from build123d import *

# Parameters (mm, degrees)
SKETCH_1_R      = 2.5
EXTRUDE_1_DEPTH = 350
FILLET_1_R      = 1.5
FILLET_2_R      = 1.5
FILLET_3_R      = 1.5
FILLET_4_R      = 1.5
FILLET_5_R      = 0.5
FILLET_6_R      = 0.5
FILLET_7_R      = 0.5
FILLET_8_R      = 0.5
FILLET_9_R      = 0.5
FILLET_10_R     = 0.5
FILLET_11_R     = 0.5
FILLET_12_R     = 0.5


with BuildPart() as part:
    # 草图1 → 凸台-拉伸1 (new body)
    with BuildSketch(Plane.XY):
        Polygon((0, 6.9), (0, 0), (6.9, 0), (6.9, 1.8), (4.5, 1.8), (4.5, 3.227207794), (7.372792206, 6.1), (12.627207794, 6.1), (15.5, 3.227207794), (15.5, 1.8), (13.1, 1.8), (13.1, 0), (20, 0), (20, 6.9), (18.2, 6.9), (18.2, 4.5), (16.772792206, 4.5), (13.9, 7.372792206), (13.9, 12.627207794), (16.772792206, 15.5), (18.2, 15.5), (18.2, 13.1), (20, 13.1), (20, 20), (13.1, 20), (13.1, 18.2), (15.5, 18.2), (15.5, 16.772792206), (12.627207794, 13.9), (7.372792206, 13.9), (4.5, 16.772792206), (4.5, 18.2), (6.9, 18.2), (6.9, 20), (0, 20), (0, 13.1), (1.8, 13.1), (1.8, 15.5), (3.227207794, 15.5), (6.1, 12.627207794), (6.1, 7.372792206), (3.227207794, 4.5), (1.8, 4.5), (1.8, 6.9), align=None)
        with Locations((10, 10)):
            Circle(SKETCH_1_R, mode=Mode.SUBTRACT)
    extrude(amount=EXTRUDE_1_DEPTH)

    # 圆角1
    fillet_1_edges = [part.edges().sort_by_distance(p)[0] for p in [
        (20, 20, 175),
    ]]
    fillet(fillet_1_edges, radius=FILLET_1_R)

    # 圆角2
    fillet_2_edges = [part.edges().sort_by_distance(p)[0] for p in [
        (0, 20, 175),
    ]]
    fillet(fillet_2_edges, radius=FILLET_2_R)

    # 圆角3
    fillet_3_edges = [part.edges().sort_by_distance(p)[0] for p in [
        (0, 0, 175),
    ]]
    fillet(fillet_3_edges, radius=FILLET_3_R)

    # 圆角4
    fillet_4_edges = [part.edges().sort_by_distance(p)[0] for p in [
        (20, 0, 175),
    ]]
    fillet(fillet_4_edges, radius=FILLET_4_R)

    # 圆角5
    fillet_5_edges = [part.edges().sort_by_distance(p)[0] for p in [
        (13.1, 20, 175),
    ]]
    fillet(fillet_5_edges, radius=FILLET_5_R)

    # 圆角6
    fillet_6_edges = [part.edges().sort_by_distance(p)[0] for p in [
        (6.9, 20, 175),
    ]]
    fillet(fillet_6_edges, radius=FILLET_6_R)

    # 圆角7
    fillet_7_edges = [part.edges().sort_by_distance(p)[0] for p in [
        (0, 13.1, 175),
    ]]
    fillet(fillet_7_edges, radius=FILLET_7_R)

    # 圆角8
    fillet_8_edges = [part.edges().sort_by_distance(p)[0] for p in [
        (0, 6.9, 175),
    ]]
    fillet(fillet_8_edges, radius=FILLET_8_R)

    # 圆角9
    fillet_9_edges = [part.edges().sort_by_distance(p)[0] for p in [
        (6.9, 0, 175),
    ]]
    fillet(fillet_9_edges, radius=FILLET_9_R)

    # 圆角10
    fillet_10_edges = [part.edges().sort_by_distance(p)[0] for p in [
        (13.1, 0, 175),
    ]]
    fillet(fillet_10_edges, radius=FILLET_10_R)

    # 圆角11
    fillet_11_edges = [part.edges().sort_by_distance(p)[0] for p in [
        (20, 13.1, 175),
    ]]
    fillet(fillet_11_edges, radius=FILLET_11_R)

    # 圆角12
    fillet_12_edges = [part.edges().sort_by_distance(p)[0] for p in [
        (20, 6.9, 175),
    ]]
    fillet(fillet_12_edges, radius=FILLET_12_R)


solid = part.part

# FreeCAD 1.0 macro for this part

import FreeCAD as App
import Part
import Sketcher
from FreeCAD import Vector
Q = App.Units.Quantity


def edges_at(feature, points):
    """Names of the edges that pass closest to the given points."""
    edges = feature.Shape.Edges
    near = lambda p: min(range(len(edges)), key=lambda i: edges[i].distToShape(Part.Vertex(*p))[0])
    return sorted({f"Edge{near(p) + 1}" for p in points})

doc = App.newDocument("Part")
body = doc.addObject("PartDesign::Body", "Body")

sketch1 = body.newObject("Sketcher::SketchObject", "Sketch")
sketch1.AttachmentSupport = (doc.getObject("XY_Plane"), [""])
sketch1.MapMode = "FlatFace"
sketch1.addGeometry([
    Part.LineSegment(Vector(0, 6.9, 0), Vector(0, 0, 0)),
    Part.LineSegment(Vector(0, 0, 0), Vector(6.9, 0, 0)),
    Part.LineSegment(Vector(6.9, 0, 0), Vector(6.9, 1.8, 0)),
    Part.LineSegment(Vector(6.9, 1.8, 0), Vector(4.5, 1.8, 0)),
    Part.LineSegment(Vector(4.5, 1.8, 0), Vector(4.5, 3.2, 0)),
    Part.LineSegment(Vector(4.5, 3.2, 0), Vector(7.4, 6.1, 0)),
    Part.LineSegment(Vector(7.4, 6.1, 0), Vector(12.6, 6.1, 0)),
    Part.LineSegment(Vector(12.6, 6.1, 0), Vector(15.5, 3.2, 0)),
    Part.LineSegment(Vector(15.5, 3.2, 0), Vector(15.5, 1.8, 0)),
    Part.LineSegment(Vector(15.5, 1.8, 0), Vector(13.1, 1.8, 0)),
    Part.LineSegment(Vector(13.1, 1.8, 0), Vector(13.1, 0, 0)),
    Part.LineSegment(Vector(13.1, 0, 0), Vector(20, 0, 0)),
    Part.LineSegment(Vector(20, 0, 0), Vector(20, 6.9, 0)),
    Part.LineSegment(Vector(20, 6.9, 0), Vector(18.2, 6.9, 0)),
    Part.LineSegment(Vector(18.2, 6.9, 0), Vector(18.2, 4.5, 0)),
    Part.LineSegment(Vector(18.2, 4.5, 0), Vector(16.8, 4.5, 0)),
    Part.LineSegment(Vector(16.8, 4.5, 0), Vector(13.9, 7.4, 0)),
    Part.LineSegment(Vector(13.9, 7.4, 0), Vector(13.9, 12.6, 0)),
    Part.LineSegment(Vector(13.9, 12.6, 0), Vector(16.8, 15.5, 0)),
    Part.LineSegment(Vector(16.8, 15.5, 0), Vector(18.2, 15.5, 0)),
    Part.LineSegment(Vector(18.2, 15.5, 0), Vector(18.2, 13.1, 0)),
    Part.LineSegment(Vector(18.2, 13.1, 0), Vector(20, 13.1, 0)),
    Part.LineSegment(Vector(20, 13.1, 0), Vector(20, 20, 0)),
    Part.LineSegment(Vector(20, 20, 0), Vector(13.1, 20, 0)),
    Part.LineSegment(Vector(13.1, 20, 0), Vector(13.1, 18.2, 0)),
    Part.LineSegment(Vector(13.1, 18.2, 0), Vector(15.5, 18.2, 0)),
    Part.LineSegment(Vector(15.5, 18.2, 0), Vector(15.5, 16.8, 0)),
    Part.LineSegment(Vector(15.5, 16.8, 0), Vector(12.6, 13.9, 0)),
    Part.LineSegment(Vector(12.6, 13.9, 0), Vector(7.4, 13.9, 0)),
    Part.LineSegment(Vector(7.4, 13.9, 0), Vector(4.5, 16.8, 0)),
    Part.LineSegment(Vector(4.5, 16.8, 0), Vector(4.5, 18.2, 0)),
    Part.LineSegment(Vector(4.5, 18.2, 0), Vector(6.9, 18.2, 0)),
    Part.LineSegment(Vector(6.9, 18.2, 0), Vector(6.9, 20, 0)),
    Part.LineSegment(Vector(6.9, 20, 0), Vector(0, 20, 0)),
    Part.LineSegment(Vector(0, 20, 0), Vector(0, 13.1, 0)),
    Part.LineSegment(Vector(0, 13.1, 0), Vector(1.8, 13.1, 0)),
    Part.LineSegment(Vector(1.8, 13.1, 0), Vector(1.8, 15.5, 0)),
    Part.LineSegment(Vector(1.8, 15.5, 0), Vector(3.2, 15.5, 0)),
    Part.LineSegment(Vector(3.2, 15.5, 0), Vector(6.1, 12.6, 0)),
    Part.LineSegment(Vector(6.1, 12.6, 0), Vector(6.1, 7.4, 0)),
    Part.LineSegment(Vector(6.1, 7.4, 0), Vector(3.2, 4.5, 0)),
    Part.LineSegment(Vector(3.2, 4.5, 0), Vector(1.8, 4.5, 0)),
    Part.LineSegment(Vector(1.8, 4.5, 0), Vector(1.8, 6.9, 0)),
    Part.LineSegment(Vector(1.8, 6.9, 0), Vector(0, 6.9, 0)),
    Part.Circle(Vector(10, 10, 0), Vector(0, 0, 1), 2.5),
], False)
sketch1.addConstraint([
    Sketcher.Constraint("Coincident", 0, 2, 1, 1),
    Sketcher.Constraint("Coincident", 1, 2, 2, 1),
    Sketcher.Constraint("Coincident", 2, 2, 3, 1),
    Sketcher.Constraint("Coincident", 3, 2, 4, 1),
    Sketcher.Constraint("Coincident", 4, 2, 5, 1),
    Sketcher.Constraint("Coincident", 5, 2, 6, 1),
    Sketcher.Constraint("Coincident", 6, 2, 7, 1),
    Sketcher.Constraint("Coincident", 7, 2, 8, 1),
    Sketcher.Constraint("Coincident", 8, 2, 9, 1),
    Sketcher.Constraint("Coincident", 9, 2, 10, 1),
    Sketcher.Constraint("Coincident", 10, 2, 11, 1),
    Sketcher.Constraint("Coincident", 11, 2, 12, 1),
    Sketcher.Constraint("Coincident", 12, 2, 13, 1),
    Sketcher.Constraint("Coincident", 13, 2, 14, 1),
    Sketcher.Constraint("Coincident", 14, 2, 15, 1),
    Sketcher.Constraint("Coincident", 15, 2, 16, 1),
    Sketcher.Constraint("Coincident", 16, 2, 17, 1),
    Sketcher.Constraint("Coincident", 17, 2, 18, 1),
    Sketcher.Constraint("Coincident", 18, 2, 19, 1),
    Sketcher.Constraint("Coincident", 19, 2, 20, 1),
    Sketcher.Constraint("Coincident", 20, 2, 21, 1),
    Sketcher.Constraint("Coincident", 21, 2, 22, 1),
    Sketcher.Constraint("Coincident", 22, 2, 23, 1),
    Sketcher.Constraint("Coincident", 23, 2, 24, 1),
    Sketcher.Constraint("Coincident", 24, 2, 25, 1),
    Sketcher.Constraint("Coincident", 25, 2, 26, 1),
    Sketcher.Constraint("Coincident", 26, 2, 27, 1),
    Sketcher.Constraint("Coincident", 27, 2, 28, 1),
    Sketcher.Constraint("Coincident", 28, 2, 29, 1),
    Sketcher.Constraint("Coincident", 29, 2, 30, 1),
    Sketcher.Constraint("Coincident", 30, 2, 31, 1),
    Sketcher.Constraint("Coincident", 31, 2, 32, 1),
    Sketcher.Constraint("Coincident", 32, 2, 33, 1),
    Sketcher.Constraint("Coincident", 33, 2, 34, 1),
    Sketcher.Constraint("Coincident", 34, 2, 35, 1),
    Sketcher.Constraint("Coincident", 35, 2, 36, 1),
    Sketcher.Constraint("Coincident", 36, 2, 37, 1),
    Sketcher.Constraint("Coincident", 37, 2, 38, 1),
    Sketcher.Constraint("Coincident", 38, 2, 39, 1),
    Sketcher.Constraint("Coincident", 39, 2, 40, 1),
    Sketcher.Constraint("Coincident", 40, 2, 41, 1),
    Sketcher.Constraint("Coincident", 41, 2, 42, 1),
    Sketcher.Constraint("Coincident", 42, 2, 43, 1),
    Sketcher.Constraint("Coincident", 43, 2, 0, 1),
    Sketcher.Constraint("Vertical", 0),
    Sketcher.Constraint("Horizontal", 1),
    Sketcher.Constraint("Vertical", 2),
    Sketcher.Constraint("Horizontal", 3),
    Sketcher.Constraint("Vertical", 4),
    Sketcher.Constraint("Horizontal", 6),
    Sketcher.Constraint("Vertical", 8),
    Sketcher.Constraint("Horizontal", 9),
    Sketcher.Constraint("Vertical", 10),
    Sketcher.Constraint("Horizontal", 11),
    Sketcher.Constraint("Vertical", 12),
    Sketcher.Constraint("Horizontal", 13),
    Sketcher.Constraint("Vertical", 14),
    Sketcher.Constraint("Horizontal", 15),
    Sketcher.Constraint("Vertical", 17),
    Sketcher.Constraint("Horizontal", 19),
    Sketcher.Constraint("Vertical", 20),
    Sketcher.Constraint("Horizontal", 21),
    Sketcher.Constraint("Vertical", 22),
    Sketcher.Constraint("Horizontal", 23),
    Sketcher.Constraint("Vertical", 24),
    Sketcher.Constraint("Horizontal", 25),
    Sketcher.Constraint("Vertical", 26),
    Sketcher.Constraint("Horizontal", 28),
    Sketcher.Constraint("Vertical", 30),
    Sketcher.Constraint("Horizontal", 31),
    Sketcher.Constraint("Vertical", 32),
    Sketcher.Constraint("Horizontal", 33),
    Sketcher.Constraint("Vertical", 34),
    Sketcher.Constraint("Horizontal", 35),
    Sketcher.Constraint("Vertical", 36),
    Sketcher.Constraint("Horizontal", 37),
    Sketcher.Constraint("Vertical", 39),
    Sketcher.Constraint("Horizontal", 41),
    Sketcher.Constraint("Vertical", 42),
    Sketcher.Constraint("Horizontal", 43),
    Sketcher.Constraint("Coincident", 0, 2, -1, 1),
    Sketcher.Constraint("PointOnObject", 10, 2, -1),
    Sketcher.Constraint("PointOnObject", 33, 2, -2),
    Sketcher.Constraint("Perpendicular", 5, 7),
    Sketcher.Constraint("Parallel", 7, 16),
    Sketcher.Constraint("Perpendicular", 16, 18),
    Sketcher.Constraint("Parallel", 18, 27),
    Sketcher.Constraint("Perpendicular", 27, 29),
    Sketcher.Constraint("Parallel", 29, 38),
    Sketcher.Constraint("Perpendicular", 38, 40),
    Sketcher.Constraint("Horizontal", 4, 2, 7, 2),
    Sketcher.Constraint("Horizontal", 3, 2, 8, 2),
    Sketcher.Constraint("Horizontal", 26, 2, 29, 2),
    Sketcher.Constraint("Horizontal", 25, 2, 30, 2),
    Sketcher.Constraint("Horizontal", 23, 2, 32, 2),
    Sketcher.Constraint("Horizontal", 21, 2, 34, 2),
    Sketcher.Constraint("Horizontal", 19, 2, 36, 2),
    Sketcher.Constraint("Horizontal", 17, 2, 38, 2),
    Sketcher.Constraint("Horizontal", 16, 2, 39, 2),
    Sketcher.Constraint("Horizontal", 15, 2, 40, 2),
    Sketcher.Constraint("Horizontal", 13, 2, 42, 2),
    Sketcher.Constraint("Vertical", 15, 2, 18, 2),
    Sketcher.Constraint("Vertical", 14, 2, 19, 2),
    Sketcher.Constraint("Vertical", 12, 2, 21, 2),
    Sketcher.Constraint("Vertical", 10, 2, 23, 2),
    Sketcher.Constraint("Vertical", 8, 2, 25, 2),
    Sketcher.Constraint("Vertical", 6, 2, 27, 2),
    Sketcher.Constraint("Vertical", 5, 2, 28, 2),
    Sketcher.Constraint("Vertical", 4, 2, 29, 2),
    Sketcher.Constraint("Vertical", 2, 2, 31, 2),
    Sketcher.Constraint("Vertical", 36, 2, 41, 2),
    Sketcher.Constraint("Equal", 3, 9),
    Sketcher.Constraint("Equal", 1, 11),
    Sketcher.Constraint("Equal", 21, 35),
    Sketcher.Constraint("Equal", 19, 37),
    Sketcher.Constraint("Equal", 33, 0),
    Sketcher.Constraint("Equal", 43, 2),
    Sketcher.Constraint("Equal", 41, 4),
    Sketcher.Constraint("Equal", 31, 14),
    Sketcher.Constraint("Equal", 28, 17),
    Sketcher.Constraint("Equal", 14, 20),
    Sketcher.Constraint("Equal", 12, 22),
    Sketcher.Constraint("Equal", 10, 24),
    Sketcher.Constraint("Equal", 8, 26),
    Sketcher.Constraint("Equal", 7, 16),
    Sketcher.Constraint("Diameter", 44, Q("5 mm")),
    Sketcher.Constraint("DistanceX", 1, 1, 1, 2, Q("6.9 mm")),
    Sketcher.Constraint("DistanceX", 3, 2, 3, 1, Q("2.4 mm")),
    Sketcher.Constraint("DistanceX", 13, 2, 13, 1, Q("1.8 mm")),
    Sketcher.Constraint("DistanceX", -1, 1, 44, 3, Q("10 mm")),
    Sketcher.Constraint("DistanceY", -1, 1, 44, 3, Q("10 mm")),
    Sketcher.Constraint("DistanceX", -1, 1, 11, 2, Q("20 mm")),
    Sketcher.Constraint("DistanceY", -1, 1, 5, 2, Q("6.1 mm")),
    Sketcher.Constraint("Distance", 5, Q("4.062742 mm")),
])
pad1 = body.newObject("PartDesign::Pad", "Pad")
pad1.Profile = sketch1
pad1.Length = 350
doc.recompute()

fillet = body.newObject("PartDesign::Fillet", "Fillet")
fillet.Base = (pad1, edges_at(pad1, [(20, 20, 175)]))
fillet.Radius = 1.5
doc.recompute()

fillet2 = body.newObject("PartDesign::Fillet", "Fillet001")
fillet2.Base = (fillet, edges_at(fillet, [(0, 20, 175)]))
fillet2.Radius = 1.5
doc.recompute()

fillet3 = body.newObject("PartDesign::Fillet", "Fillet002")
fillet3.Base = (fillet2, edges_at(fillet2, [(0, 0, 175)]))
fillet3.Radius = 1.5
doc.recompute()

fillet4 = body.newObject("PartDesign::Fillet", "Fillet003")
fillet4.Base = (fillet3, edges_at(fillet3, [(20, 0, 175)]))
fillet4.Radius = 1.5
doc.recompute()

fillet5 = body.newObject("PartDesign::Fillet", "Fillet004")
fillet5.Base = (fillet4, edges_at(fillet4, [(13.1, 20, 175)]))
fillet5.Radius = 0.5
doc.recompute()

fillet6 = body.newObject("PartDesign::Fillet", "Fillet005")
fillet6.Base = (fillet5, edges_at(fillet5, [(6.9, 20, 175)]))
fillet6.Radius = 0.5
doc.recompute()

fillet7 = body.newObject("PartDesign::Fillet", "Fillet006")
fillet7.Base = (fillet6, edges_at(fillet6, [(0, 13.1, 175)]))
fillet7.Radius = 0.5
doc.recompute()

fillet8 = body.newObject("PartDesign::Fillet", "Fillet007")
fillet8.Base = (fillet7, edges_at(fillet7, [(0, 6.9, 175)]))
fillet8.Radius = 0.5
doc.recompute()

fillet9 = body.newObject("PartDesign::Fillet", "Fillet008")
fillet9.Base = (fillet8, edges_at(fillet8, [(6.9, 0, 175)]))
fillet9.Radius = 0.5
doc.recompute()

fillet10 = body.newObject("PartDesign::Fillet", "Fillet009")
fillet10.Base = (fillet9, edges_at(fillet9, [(13.1, 0, 175)]))
fillet10.Radius = 0.5
doc.recompute()

fillet11 = body.newObject("PartDesign::Fillet", "Fillet010")
fillet11.Base = (fillet10, edges_at(fillet10, [(20, 13.1, 175)]))
fillet11.Radius = 0.5
doc.recompute()

fillet12 = body.newObject("PartDesign::Fillet", "Fillet011")
fillet12.Base = (fillet11, edges_at(fillet11, [(20, 6.9, 175)]))
fillet12.Radius = 0.5

doc.recompute()
